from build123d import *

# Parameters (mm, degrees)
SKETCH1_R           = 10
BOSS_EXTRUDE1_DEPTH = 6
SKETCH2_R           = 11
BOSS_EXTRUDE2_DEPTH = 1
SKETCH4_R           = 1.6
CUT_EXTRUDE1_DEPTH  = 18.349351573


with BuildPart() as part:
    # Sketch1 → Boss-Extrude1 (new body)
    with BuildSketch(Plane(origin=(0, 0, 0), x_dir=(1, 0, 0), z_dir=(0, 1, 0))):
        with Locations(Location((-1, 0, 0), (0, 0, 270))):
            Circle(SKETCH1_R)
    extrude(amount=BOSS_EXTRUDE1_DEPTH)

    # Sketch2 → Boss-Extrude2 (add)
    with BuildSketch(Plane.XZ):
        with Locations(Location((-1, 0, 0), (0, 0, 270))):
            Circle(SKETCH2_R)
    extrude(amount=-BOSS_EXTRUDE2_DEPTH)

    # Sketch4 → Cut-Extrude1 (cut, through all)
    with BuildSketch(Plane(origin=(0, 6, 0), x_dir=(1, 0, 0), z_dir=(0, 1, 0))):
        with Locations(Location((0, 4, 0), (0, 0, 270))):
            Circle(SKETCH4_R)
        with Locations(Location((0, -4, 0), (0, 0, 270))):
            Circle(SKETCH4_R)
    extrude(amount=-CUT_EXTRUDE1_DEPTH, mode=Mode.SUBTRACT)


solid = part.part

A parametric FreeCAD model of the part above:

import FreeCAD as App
import Part
import Sketcher
Q = App.Units.Quantity

doc = App.newDocument("Part")
body = doc.addObject("PartDesign::Body", "Body")

# Sketch on XZ plane
sketch1 = body.newObject("Sketcher::SketchObject", "Sketch")
sketch1.AttachmentSupport = (doc.getObject("XZ_Plane"), [""])
sketch1.MapMode = "FlatFace"
sketch1.addGeometry(Part.Circle(App.Vector(-1, 0, 0), App.Vector(0, 0, 1), 10), False)
sketch1.addConstraint([
    Sketcher.Constraint("PointOnObject", 0, 3, -1),
    Sketcher.Constraint("Diameter", 0, Q("20 mm")),
    Sketcher.Constraint("DistanceX", 0, 3, -1, 1, Q("1 mm")),
])
pad1 = body.newObject("PartDesign::Pad", "Pad")
pad1.Profile = sketch1
pad1.Length = 6
pad1.Reversed = True

# Sketch on XZ plane
sketch2 = body.newObject("Sketcher::SketchObject", "Sketch001")
sketch2.AttachmentSupport = (doc.getObject("XZ_Plane"), [""])
sketch2.MapMode = "FlatFace"
sketch2.addGeometry(Part.Circle(App.Vector(-1, 0, 0), App.Vector(0, 0, 1), 11), False)
sketch2.addConstraint([
    Sketcher.Constraint("PointOnObject", 0, 3, -1),
    Sketcher.Constraint("Diameter", 0, Q("22 mm")),
    Sketcher.Constraint("DistanceX", 0, 3, -1, 1, Q("1 mm")),
])
pad2 = body.newObject("PartDesign::Pad", "Pad001")
pad2.Profile = sketch2
pad2.Length = 1
pad2.Reversed = True

# Sketch on XZ plane
sketch3 = body.newObject("Sketcher::SketchObject", "Sketch002")
sketch3.AttachmentSupport = (doc.getObject("XZ_Plane"), [""])
sketch3.MapMode = "FlatFace"
sketch3.AttachmentOffset = App.Placement(App.Vector(0, 0, -6), App.Rotation())
sketch3.addGeometry([
    Part.Circle(App.Vector(0, -4, 0), App.Vector(0, 0, 1), 1.6),
    Part.Circle(App.Vector(0, 4, 0), App.Vector(0, 0, 1), 1.6),
], False)
sketch3.addConstraint([
    Sketcher.Constraint("Equal", 0, 1),
    Sketcher.Constraint("Symmetric", 0, 3, 1, 3, -1, 1),
    Sketcher.Constraint("PointOnObject", 0, 3, -2),
    Sketcher.Constraint("Diameter", 0, Q("3.2 mm")),
    Sketcher.Constraint("DistanceY", 0, 3, -1, 1, Q("4 mm")),
])
pocket1 = body.newObject("PartDesign::Pocket", "Pocket")
pocket1.Profile = sketch3
pocket1.Type = "ThroughAll"
pocket1.Reversed = True

doc.recompute()
